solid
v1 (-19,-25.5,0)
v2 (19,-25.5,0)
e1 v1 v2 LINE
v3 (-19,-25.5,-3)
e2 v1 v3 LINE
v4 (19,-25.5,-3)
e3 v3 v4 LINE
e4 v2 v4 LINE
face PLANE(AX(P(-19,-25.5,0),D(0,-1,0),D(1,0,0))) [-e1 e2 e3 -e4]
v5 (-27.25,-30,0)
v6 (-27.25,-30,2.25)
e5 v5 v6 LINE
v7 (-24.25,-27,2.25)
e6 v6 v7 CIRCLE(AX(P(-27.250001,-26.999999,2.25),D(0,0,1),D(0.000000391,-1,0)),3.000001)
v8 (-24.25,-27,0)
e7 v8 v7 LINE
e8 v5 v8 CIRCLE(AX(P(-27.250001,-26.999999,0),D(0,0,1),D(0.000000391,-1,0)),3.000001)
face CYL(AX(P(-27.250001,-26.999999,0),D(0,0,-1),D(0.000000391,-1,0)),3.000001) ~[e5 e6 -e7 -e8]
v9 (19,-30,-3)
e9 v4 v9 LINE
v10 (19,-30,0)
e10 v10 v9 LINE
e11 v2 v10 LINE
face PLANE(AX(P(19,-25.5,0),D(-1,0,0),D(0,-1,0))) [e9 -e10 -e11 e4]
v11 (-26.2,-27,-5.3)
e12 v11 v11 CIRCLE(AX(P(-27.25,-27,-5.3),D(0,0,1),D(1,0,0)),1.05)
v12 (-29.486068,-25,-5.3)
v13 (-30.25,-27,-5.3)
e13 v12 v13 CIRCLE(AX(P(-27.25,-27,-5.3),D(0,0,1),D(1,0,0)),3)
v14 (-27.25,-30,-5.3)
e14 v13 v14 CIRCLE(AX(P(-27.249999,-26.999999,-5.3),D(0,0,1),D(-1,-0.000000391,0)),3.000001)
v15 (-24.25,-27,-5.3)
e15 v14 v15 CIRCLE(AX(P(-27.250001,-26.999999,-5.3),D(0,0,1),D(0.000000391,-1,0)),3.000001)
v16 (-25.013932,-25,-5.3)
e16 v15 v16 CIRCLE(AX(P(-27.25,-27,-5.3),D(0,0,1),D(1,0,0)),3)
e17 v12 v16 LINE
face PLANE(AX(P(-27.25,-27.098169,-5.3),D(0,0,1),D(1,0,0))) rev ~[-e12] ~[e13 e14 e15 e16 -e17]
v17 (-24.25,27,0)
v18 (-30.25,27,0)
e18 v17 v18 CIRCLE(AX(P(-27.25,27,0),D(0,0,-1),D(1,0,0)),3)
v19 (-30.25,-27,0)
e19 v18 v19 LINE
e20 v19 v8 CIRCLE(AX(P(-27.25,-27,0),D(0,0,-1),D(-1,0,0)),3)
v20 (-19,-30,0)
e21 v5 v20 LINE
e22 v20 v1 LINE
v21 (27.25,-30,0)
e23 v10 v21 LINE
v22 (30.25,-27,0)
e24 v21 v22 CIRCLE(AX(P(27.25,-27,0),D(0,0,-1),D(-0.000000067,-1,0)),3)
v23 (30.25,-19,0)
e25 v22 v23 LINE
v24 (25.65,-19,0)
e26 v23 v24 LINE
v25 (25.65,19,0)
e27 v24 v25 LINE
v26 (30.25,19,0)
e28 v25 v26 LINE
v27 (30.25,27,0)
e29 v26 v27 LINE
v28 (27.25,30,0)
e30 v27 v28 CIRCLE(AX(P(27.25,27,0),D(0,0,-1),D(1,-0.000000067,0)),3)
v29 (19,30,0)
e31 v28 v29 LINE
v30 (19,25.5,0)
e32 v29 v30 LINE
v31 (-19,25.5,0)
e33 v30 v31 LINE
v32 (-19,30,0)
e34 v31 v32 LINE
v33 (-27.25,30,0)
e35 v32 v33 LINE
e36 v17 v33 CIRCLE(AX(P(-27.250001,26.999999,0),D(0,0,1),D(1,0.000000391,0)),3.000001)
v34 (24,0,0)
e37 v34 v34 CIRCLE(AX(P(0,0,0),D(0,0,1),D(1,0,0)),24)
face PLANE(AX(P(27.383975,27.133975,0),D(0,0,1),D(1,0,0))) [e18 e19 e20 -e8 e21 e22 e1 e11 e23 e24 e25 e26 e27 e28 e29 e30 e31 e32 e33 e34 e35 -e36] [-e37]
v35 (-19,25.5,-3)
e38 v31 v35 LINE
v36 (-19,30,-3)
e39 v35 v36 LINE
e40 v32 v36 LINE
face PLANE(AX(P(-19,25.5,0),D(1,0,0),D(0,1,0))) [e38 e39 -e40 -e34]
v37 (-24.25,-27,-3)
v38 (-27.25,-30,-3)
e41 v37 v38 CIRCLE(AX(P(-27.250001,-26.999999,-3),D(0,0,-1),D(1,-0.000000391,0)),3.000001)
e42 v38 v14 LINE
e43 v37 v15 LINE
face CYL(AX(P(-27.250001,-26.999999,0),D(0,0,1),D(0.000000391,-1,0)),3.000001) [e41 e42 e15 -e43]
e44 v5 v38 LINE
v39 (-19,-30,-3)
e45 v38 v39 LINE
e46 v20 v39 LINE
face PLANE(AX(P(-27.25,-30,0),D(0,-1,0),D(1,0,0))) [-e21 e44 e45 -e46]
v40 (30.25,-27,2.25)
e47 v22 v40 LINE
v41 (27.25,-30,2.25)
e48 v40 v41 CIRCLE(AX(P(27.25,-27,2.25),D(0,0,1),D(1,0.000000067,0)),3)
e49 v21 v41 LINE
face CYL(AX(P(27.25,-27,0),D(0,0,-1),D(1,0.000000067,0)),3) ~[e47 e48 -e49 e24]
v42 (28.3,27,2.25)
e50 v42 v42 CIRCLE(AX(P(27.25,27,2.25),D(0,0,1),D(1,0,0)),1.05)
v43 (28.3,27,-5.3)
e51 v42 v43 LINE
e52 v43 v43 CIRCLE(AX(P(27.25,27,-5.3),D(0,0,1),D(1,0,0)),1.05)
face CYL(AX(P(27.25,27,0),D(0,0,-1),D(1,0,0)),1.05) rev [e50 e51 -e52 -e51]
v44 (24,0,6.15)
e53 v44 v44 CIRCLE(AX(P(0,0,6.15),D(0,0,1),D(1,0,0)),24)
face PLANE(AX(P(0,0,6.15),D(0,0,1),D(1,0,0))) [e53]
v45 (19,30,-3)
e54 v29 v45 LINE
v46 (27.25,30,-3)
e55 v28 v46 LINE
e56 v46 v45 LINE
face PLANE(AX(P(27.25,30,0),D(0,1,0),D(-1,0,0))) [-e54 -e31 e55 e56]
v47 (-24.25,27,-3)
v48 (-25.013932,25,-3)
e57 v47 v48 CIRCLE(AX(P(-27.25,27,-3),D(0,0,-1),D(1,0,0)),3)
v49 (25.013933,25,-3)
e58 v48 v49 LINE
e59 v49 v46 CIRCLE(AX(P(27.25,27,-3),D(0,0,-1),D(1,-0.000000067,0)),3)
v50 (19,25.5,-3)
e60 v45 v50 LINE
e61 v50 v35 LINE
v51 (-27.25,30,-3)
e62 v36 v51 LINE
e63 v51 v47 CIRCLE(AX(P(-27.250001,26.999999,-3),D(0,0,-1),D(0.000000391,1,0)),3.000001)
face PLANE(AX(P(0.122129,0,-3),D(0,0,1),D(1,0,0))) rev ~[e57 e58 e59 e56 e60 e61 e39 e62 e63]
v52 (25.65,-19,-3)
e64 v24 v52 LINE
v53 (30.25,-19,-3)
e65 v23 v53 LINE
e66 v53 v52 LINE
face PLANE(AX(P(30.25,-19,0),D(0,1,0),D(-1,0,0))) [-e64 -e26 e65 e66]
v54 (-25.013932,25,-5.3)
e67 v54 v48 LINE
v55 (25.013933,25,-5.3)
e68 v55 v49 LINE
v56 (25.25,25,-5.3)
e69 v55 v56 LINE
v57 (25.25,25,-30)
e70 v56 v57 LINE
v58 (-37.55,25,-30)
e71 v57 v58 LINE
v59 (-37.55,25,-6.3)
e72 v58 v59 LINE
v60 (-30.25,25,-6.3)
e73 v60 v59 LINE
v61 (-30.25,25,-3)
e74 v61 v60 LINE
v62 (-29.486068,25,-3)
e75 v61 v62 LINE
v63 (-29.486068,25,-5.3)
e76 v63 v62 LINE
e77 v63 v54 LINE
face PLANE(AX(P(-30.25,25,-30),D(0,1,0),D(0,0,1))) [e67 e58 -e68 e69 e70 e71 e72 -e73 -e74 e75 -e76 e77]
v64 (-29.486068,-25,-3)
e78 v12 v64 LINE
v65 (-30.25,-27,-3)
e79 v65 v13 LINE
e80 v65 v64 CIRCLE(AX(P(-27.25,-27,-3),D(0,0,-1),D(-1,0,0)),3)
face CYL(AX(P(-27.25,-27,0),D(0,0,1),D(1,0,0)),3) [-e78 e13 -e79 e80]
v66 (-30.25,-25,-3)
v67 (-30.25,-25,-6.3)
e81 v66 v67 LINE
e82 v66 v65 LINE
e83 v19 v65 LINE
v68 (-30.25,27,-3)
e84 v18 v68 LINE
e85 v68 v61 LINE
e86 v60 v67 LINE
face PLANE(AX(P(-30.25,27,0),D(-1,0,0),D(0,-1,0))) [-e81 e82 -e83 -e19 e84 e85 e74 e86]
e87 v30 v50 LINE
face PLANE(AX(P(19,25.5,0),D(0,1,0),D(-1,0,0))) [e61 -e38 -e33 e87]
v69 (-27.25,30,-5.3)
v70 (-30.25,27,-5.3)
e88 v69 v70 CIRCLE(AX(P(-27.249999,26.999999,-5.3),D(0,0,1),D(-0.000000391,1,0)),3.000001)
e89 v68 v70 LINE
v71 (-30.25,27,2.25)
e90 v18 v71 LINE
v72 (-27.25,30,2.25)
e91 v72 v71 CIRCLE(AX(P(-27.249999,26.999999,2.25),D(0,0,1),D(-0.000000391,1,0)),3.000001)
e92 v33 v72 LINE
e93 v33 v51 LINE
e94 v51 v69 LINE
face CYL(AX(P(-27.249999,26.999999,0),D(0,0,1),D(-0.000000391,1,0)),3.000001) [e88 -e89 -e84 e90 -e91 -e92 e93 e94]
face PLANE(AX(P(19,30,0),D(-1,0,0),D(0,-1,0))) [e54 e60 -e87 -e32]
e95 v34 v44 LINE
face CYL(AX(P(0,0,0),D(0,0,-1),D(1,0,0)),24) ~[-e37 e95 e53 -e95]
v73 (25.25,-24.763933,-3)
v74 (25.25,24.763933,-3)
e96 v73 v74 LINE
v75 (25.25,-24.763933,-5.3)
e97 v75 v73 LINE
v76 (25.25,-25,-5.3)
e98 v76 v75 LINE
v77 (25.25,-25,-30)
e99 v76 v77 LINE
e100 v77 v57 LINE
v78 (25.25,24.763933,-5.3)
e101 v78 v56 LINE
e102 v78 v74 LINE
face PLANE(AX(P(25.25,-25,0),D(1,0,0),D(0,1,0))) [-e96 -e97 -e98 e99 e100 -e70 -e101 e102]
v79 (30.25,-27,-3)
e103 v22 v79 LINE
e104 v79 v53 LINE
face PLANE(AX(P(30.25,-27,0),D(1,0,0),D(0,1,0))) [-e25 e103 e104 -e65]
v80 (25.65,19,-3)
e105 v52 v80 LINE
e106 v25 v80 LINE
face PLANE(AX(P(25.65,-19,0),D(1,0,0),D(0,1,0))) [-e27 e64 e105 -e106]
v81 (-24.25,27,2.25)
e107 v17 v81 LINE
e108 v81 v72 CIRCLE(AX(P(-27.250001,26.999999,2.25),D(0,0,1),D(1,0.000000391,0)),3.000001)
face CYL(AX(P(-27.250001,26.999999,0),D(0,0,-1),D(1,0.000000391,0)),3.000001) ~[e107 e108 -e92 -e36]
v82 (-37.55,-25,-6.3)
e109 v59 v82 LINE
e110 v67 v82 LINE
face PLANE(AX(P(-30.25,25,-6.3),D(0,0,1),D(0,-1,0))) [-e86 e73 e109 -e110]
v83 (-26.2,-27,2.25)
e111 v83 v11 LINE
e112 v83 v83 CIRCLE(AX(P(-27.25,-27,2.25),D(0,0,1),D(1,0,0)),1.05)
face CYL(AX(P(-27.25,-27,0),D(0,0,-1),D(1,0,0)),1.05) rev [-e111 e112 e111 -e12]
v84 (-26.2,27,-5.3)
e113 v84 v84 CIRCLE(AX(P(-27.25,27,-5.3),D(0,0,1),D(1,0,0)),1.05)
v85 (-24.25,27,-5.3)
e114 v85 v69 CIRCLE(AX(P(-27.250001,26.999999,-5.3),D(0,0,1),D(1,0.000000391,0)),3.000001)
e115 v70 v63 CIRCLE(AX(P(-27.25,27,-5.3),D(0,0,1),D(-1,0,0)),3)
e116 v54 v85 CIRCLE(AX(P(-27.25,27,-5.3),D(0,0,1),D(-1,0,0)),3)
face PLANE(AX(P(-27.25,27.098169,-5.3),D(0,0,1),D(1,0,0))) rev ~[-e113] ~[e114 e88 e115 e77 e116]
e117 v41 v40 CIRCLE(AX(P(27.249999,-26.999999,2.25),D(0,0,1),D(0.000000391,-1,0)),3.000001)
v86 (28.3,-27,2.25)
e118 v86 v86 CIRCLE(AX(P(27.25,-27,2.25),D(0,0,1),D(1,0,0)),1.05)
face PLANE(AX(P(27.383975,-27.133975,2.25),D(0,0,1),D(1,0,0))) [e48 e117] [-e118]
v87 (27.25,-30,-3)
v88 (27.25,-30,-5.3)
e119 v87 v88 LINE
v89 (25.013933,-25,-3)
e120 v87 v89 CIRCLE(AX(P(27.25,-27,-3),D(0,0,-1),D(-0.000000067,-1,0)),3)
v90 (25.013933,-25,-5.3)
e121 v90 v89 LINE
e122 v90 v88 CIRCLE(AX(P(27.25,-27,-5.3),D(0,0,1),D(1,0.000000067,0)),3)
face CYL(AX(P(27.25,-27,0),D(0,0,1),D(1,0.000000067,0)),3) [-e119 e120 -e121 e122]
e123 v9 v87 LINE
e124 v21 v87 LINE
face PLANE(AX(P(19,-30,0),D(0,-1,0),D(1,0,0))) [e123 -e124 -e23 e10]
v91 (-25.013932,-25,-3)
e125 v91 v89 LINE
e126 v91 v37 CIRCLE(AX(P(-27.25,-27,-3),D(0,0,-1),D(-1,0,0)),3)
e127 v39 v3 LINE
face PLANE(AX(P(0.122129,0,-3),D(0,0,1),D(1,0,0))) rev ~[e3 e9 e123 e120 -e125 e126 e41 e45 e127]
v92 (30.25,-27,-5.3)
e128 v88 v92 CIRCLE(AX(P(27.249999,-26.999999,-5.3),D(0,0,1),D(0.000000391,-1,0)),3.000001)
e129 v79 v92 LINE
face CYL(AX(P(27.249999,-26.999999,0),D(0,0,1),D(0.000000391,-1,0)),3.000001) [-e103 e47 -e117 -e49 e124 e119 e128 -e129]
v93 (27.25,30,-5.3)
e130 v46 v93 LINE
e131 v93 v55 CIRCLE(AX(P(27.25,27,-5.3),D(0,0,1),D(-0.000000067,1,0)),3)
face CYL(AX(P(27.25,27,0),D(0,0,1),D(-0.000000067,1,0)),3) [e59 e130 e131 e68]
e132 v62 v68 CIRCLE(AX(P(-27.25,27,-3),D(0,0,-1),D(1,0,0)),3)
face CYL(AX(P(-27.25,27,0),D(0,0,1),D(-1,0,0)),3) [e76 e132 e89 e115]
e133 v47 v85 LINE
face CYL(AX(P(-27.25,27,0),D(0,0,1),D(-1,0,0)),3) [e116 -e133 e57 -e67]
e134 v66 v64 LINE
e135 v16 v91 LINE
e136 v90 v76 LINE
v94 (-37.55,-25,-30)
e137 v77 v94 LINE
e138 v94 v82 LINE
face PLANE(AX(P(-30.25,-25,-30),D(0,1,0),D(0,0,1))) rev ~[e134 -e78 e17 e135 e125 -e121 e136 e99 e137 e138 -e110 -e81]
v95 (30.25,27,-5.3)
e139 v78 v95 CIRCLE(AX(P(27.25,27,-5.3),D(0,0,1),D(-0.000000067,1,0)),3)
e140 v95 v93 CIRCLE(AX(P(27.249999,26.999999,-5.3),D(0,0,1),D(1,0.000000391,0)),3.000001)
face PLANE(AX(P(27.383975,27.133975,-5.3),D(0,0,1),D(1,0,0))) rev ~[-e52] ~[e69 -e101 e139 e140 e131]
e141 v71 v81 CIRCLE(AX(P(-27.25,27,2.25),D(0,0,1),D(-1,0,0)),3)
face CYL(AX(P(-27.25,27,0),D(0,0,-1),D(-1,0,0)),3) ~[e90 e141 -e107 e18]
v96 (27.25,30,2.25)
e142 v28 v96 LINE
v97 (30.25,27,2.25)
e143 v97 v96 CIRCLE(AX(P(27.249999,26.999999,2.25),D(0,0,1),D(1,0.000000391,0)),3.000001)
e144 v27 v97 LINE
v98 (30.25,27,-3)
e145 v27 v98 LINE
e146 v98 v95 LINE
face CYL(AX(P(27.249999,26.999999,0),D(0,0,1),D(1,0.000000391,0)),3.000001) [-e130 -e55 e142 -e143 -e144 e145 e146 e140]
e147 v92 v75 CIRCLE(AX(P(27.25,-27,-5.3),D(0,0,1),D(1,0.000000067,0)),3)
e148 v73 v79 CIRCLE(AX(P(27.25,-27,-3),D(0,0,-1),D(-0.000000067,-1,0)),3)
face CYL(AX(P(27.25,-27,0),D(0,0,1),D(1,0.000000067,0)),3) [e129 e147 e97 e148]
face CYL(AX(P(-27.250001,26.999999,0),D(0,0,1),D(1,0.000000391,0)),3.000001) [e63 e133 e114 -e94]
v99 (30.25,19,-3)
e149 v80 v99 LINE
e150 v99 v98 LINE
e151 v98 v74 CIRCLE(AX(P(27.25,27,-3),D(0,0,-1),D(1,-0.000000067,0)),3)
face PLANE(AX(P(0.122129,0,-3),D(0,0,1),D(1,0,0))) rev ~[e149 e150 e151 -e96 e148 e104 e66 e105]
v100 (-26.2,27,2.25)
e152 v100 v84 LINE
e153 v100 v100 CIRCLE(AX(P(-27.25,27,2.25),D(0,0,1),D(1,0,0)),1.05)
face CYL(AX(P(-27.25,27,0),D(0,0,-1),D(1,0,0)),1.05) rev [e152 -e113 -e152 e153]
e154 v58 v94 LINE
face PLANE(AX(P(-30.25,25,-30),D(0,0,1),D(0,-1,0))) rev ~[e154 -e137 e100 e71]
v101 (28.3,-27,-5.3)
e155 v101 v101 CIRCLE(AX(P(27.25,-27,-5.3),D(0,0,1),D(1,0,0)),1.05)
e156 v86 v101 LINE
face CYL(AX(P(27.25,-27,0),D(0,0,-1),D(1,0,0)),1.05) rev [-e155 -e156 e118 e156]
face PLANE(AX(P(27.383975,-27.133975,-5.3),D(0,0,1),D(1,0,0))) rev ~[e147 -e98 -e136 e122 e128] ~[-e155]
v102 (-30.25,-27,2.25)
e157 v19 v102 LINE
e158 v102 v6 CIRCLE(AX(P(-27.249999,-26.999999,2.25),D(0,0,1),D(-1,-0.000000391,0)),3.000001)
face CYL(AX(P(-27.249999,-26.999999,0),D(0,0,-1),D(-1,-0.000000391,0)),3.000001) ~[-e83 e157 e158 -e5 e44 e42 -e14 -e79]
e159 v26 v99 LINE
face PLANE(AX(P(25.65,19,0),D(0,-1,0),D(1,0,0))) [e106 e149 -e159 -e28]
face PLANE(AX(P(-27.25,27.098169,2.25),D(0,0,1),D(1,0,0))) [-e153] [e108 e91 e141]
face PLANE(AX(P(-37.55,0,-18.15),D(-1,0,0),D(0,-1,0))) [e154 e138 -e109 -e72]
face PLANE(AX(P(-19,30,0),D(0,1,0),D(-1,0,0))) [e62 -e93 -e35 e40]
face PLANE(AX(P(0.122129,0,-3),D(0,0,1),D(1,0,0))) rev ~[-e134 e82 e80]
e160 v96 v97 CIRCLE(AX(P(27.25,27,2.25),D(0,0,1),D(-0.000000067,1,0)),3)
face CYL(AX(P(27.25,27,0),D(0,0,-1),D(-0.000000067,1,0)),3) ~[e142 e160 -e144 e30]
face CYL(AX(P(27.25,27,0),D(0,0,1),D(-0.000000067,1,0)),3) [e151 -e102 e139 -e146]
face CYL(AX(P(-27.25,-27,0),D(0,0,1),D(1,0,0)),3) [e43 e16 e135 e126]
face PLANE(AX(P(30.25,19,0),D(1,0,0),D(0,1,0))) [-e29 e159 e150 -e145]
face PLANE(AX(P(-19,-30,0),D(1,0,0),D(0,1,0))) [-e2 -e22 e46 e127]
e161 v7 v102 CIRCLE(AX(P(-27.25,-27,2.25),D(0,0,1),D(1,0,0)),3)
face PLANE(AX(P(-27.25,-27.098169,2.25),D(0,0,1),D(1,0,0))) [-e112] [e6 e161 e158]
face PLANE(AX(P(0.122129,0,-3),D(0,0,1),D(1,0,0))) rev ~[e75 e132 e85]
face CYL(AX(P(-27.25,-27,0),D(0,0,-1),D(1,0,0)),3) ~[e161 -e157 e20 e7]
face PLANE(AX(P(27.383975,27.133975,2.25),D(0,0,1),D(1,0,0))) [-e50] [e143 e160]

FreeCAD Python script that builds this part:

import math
import FreeCAD as App
import Part
import Sketcher


def add_polygon(sketch, points):
    """Adds a closed chain of lines whose ends are joined by coincident constraints."""
    first, n = sketch.GeometryCount, len(points)
    for a, b in zip(points, points[1:] + points[:1]):
        sketch.addGeometry(Part.LineSegment(App.Vector(*a, 0), App.Vector(*b, 0)), False)
    for i in range(n):
        sketch.addConstraint(Sketcher.Constraint("Coincident", first + i, 2, first + (i + 1) % n, 1))

doc = App.newDocument("Part")
params = doc.addObject("Spreadsheet::Sheet", "Params")
for row, (alias, value) in enumerate([
    ("sketch1_diameter", "48 mm"),
    ("pad1_length", "6.15 mm"),
    ("sketch2_radius", "3.000001 mm"),
    ("sketch2_diameter", "2.1 mm"),
    ("pad2_length", "2.25 mm"),
    ("sketch3_radius", "3 mm"),
    ("sketch3_diameter", "2.1 mm"),
    ("pad3_length", "5.3 mm"),
    ("sketch4_diameter", "48 mm"),
    ("sketch4_radius", "3 mm"),
    ("sketch4_width", "38 mm"),
    ("sketch4_height", "54 mm"),
    ("sketch4_width2", "4.6 mm"),
    ("pad4_length", "3 mm"),
    ("sketch5_height", "50 mm"),
    ("sketch5_width", "55.5 mm"),
    ("pad5_length", "30 mm"),
    ("sketch6_width", "50 mm"),
    ("sketch6_height", "23.7 mm"),
    ("pad6_length", "7.3 mm"),
], start=1):
    params.set(f"A{row}", alias)
    params.set(f"B{row}", "=" + value)
    params.setAlias(f"B{row}", alias)

body = doc.addObject("PartDesign::Body", "Body")

# Sketch on XY plane
sketch1 = doc.addObject("Sketcher::SketchObject", "Sketch")
body.addObject(sketch1)
sketch1.AttachmentSupport = (doc.XY_Plane, [""])
sketch1.MapMode = "FlatFace"
sketch1.addGeometry(Part.Circle(App.Vector(0, 0, 0), App.Vector(0, 0, 1), 24), False)
sketch1.addConstraint(Sketcher.Constraint("Coincident", 0, 3, -1, 1))
sketch1.addConstraint(Sketcher.Constraint("Diameter", 0, 48.0))
sketch1.setExpression("Constraints[1]", "Params.sketch1_diameter")
pad1 = doc.addObject("PartDesign::Pad", "Pad")
body.addObject(pad1)
pad1.Profile = sketch1
pad1.setExpression("Length", "Params.pad1_length")
body2 = doc.addObject("PartDesign::Body", "Body001")
body2.AllowCompound = True

# Sketch on XY plane
sketch2 = doc.addObject("Sketcher::SketchObject", "Sketch001")
body2.addObject(sketch2)
sketch2.AttachmentSupport = (doc.getObject("XY_Plane001"), [""])
sketch2.MapMode = "FlatFace"
sketch2.addGeometry(Part.ArcOfCircle(Part.Circle(App.Vector(27.249999, -26.999999, 0), App.Vector(0, 0, 1), 3.000001), math.radians(-89.999978), math.radians(-0.000022)), False)
sketch2.addGeometry(Part.ArcOfCircle(Part.Circle(App.Vector(27.25, -27, 0), App.Vector(0, 0, 1), 3), math.radians(0.000004), math.radians(269.999996)), False)
sketch2.addGeometry(Part.Circle(App.Vector(27.25, -27, 0), App.Vector(0, 0, 1), 1.05), False)
sketch2.addGeometry(Part.ArcOfCircle(Part.Circle(App.Vector(27.249999, 26.999999, 0), App.Vector(0, 0, 1), 3.000001), math.radians(0.000022), math.radians(89.999978)), False)
sketch2.addGeometry(Part.ArcOfCircle(Part.Circle(App.Vector(27.25, 27, 0), App.Vector(0, 0, 1), 3), math.radians(90.000004), math.radians(359.999996)), False)
sketch2.addGeometry(Part.Circle(App.Vector(27.25, 27, 0), App.Vector(0, 0, 1), 1.05), False)
sketch2.addGeometry(Part.ArcOfCircle(Part.Circle(App.Vector(-27.250001, 26.999999, 0), App.Vector(0, 0, 1), 3.000001), math.radians(0.000022), math.radians(89.999978)), False)
sketch2.addGeometry(Part.ArcOfCircle(Part.Circle(App.Vector(-27.249999, 26.999999, 0), App.Vector(0, 0, 1), 3.000001), math.radians(90.000022), math.radians(179.999978)), False)
sketch2.addGeometry(Part.ArcOfCircle(Part.Circle(App.Vector(-27.25, 27, 0), App.Vector(0, 0, 1), 3), math.radians(180), math.radians(360)), False)
sketch2.addGeometry(Part.Circle(App.Vector(-27.25, 27, 0), App.Vector(0, 0, 1), 1.05), False)
sketch2.addGeometry(Part.ArcOfCircle(Part.Circle(App.Vector(-27.25, -27, 0), App.Vector(0, 0, 1), 3), math.radians(0), math.radians(180)), False)
sketch2.addGeometry(Part.ArcOfCircle(Part.Circle(App.Vector(-27.249999, -26.999999, 0), App.Vector(0, 0, 1), 3.000001), math.radians(-179.999978), math.radians(-90.000022)), False)
sketch2.addGeometry(Part.ArcOfCircle(Part.Circle(App.Vector(-27.250001, -26.999999, 0), App.Vector(0, 0, 1), 3.000001), math.radians(-89.999978), math.radians(-0.000022)), False)
sketch2.addGeometry(Part.Circle(App.Vector(-27.25, -27, 0), App.Vector(0, 0, 1), 1.05), False)
sketch2.addConstraint(Sketcher.Constraint("Tangent", 0, 1, 1, 2))
sketch2.addConstraint(Sketcher.Constraint("Coincident", 1, 1, 0, 2))
sketch2.addConstraint(Sketcher.Constraint("Tangent", 3, 1, 4, 2))
sketch2.addConstraint(Sketcher.Constraint("Coincident", 4, 1, 3, 2))
sketch2.addConstraint(Sketcher.Constraint("Tangent", 6, 2, 7, 1))
sketch2.addConstraint(Sketcher.Constraint("Tangent", 7, 2, 8, 1))
sketch2.addConstraint(Sketcher.Constraint("Tangent", 8, 2, 6, 1))
sketch2.addConstraint(Sketcher.Constraint("Tangent", 10, 2, 11, 1))
sketch2.addConstraint(Sketcher.Constraint("Tangent", 11, 2, 12, 1))
sketch2.addConstraint(Sketcher.Constraint("Tangent", 12, 2, 10, 1))
sketch2.addConstraint(Sketcher.Constraint("Coincident", 2, 3, 0, 3))
sketch2.addConstraint(Sketcher.Constraint("Coincident", 5, 3, 3, 3))
sketch2.addConstraint(Sketcher.Constraint("Coincident", 9, 3, 6, 3))
sketch2.addConstraint(Sketcher.Constraint("Coincident", 13, 3, 10, 3))
sketch2.addConstraint(Sketcher.Constraint("Equal", 1, 3))
sketch2.addConstraint(Sketcher.Constraint("Equal", 2, 5))
sketch2.addConstraint(Sketcher.Constraint("Equal", 4, 6))
sketch2.addConstraint(Sketcher.Constraint("Equal", 5, 9))
sketch2.addConstraint(Sketcher.Constraint("Equal", 8, 10))
sketch2.addConstraint(Sketcher.Constraint("Equal", 9, 13))
sketch2.addConstraint(Sketcher.Constraint("Symmetric", 0, 3, 6, 3, -1, 1))
sketch2.addConstraint(Sketcher.Constraint("Symmetric", 3, 3, 10, 3, -1, 1))
sketch2.addConstraint(Sketcher.Constraint("Symmetric", 3, 3, 6, 3, -2))
sketch2.addConstraint(Sketcher.Constraint("Horizontal", 13, 3, 1, 1))
sketch2.addConstraint(Sketcher.Constraint("Horizontal", 9, 3, 3, 1))
sketch2.addConstraint(Sketcher.Constraint("Horizontal", 3, 1, 7, 2))
sketch2.addConstraint(Sketcher.Constraint("Horizontal", 7, 2, 8, 2))
sketch2.addConstraint(Sketcher.Constraint("Horizontal", 1, 1, 10, 2))
sketch2.addConstraint(Sketcher.Constraint("Horizontal", 10, 2, 12, 2))
sketch2.addConstraint(Sketcher.Constraint("Vertical", 5, 3, 0, 1))
sketch2.addConstraint(Sketcher.Constraint("Vertical", 0, 1, 4, 1))
sketch2.addConstraint(Sketcher.Constraint("Vertical", 13, 3, 6, 2))
sketch2.addConstraint(Sketcher.Constraint("Vertical", 6, 2, 11, 2))
sketch2.addConstraint(Sketcher.Constraint("Radius", 0, 3.000001))
sketch2.addConstraint(Sketcher.Constraint("Diameter", 2, 2.1))
sketch2.addConstraint(Sketcher.Constraint("DistanceY", 0, 3, -1, 1, 26.999999))
sketch2.addConstraint(Sketcher.Constraint("DistanceX", 6, 3, 3, 3, 54.5))
sketch2.setExpression("Constraints[33]", "Params.sketch2_radius")
sketch2.setExpression("Constraints[34]", "Params.sketch2_diameter")
pad2 = doc.addObject("PartDesign::Pad", "Pad001")
body2.addObject(pad2)
pad2.Profile = sketch2
pad2.setExpression("Length", "Params.pad2_length")
body3 = doc.addObject("PartDesign::Body", "Body002")
body3.AllowCompound = True

# Sketch on XY plane
sketch3 = doc.addObject("Sketcher::SketchObject", "Sketch002")
body3.addObject(sketch3)
sketch3.AttachmentSupport = (doc.getObject("XY_Plane002"), [""])
sketch3.MapMode = "FlatFace"
sketch3.addGeometry(Part.ArcOfCircle(Part.Circle(App.Vector(-27.25, -27, 0), App.Vector(0, 0, 1), 3), math.radians(0), math.radians(180)), False)
sketch3.addGeometry(Part.ArcOfCircle(Part.Circle(App.Vector(-27.249999, -26.999999, 0), App.Vector(0, 0, 1), 3.000001), math.radians(-179.999978), math.radians(-90.000022)), False)
sketch3.addGeometry(Part.ArcOfCircle(Part.Circle(App.Vector(-27.250001, -26.999999, 0), App.Vector(0, 0, 1), 3.000001), math.radians(-89.999978), math.radians(-0.000022)), False)
sketch3.addGeometry(Part.Circle(App.Vector(-27.25, -27, 0), App.Vector(0, 0, 1), 1.05), False)
sketch3.addGeometry(Part.ArcOfCircle(Part.Circle(App.Vector(-27.250001, 26.999999, 0), App.Vector(0, 0, 1), 3.000001), math.radians(0.000022), math.radians(89.999978)), False)
sketch3.addGeometry(Part.ArcOfCircle(Part.Circle(App.Vector(-27.249999, 26.999999, 0), App.Vector(0, 0, 1), 3.000001), math.radians(90.000022), math.radians(179.999978)), False)
sketch3.addGeometry(Part.ArcOfCircle(Part.Circle(App.Vector(-27.25, 27, 0), App.Vector(0, 0, 1), 3), math.radians(180), math.radians(360)), False)
sketch3.addGeometry(Part.Circle(App.Vector(-27.25, 27, 0), App.Vector(0, 0, 1), 1.05), False)
sketch3.addGeometry(Part.ArcOfCircle(Part.Circle(App.Vector(27.249999, -26.999999, 0), App.Vector(0, 0, 1), 3.000001), math.radians(-89.999978), math.radians(-0.000022)), False)
sketch3.addGeometry(Part.ArcOfCircle(Part.Circle(App.Vector(27.25, -27, 0), App.Vector(0, 0, 1), 3), math.radians(0.000004), math.radians(269.999996)), False)
sketch3.addGeometry(Part.Circle(App.Vector(27.25, -27, 0), App.Vector(0, 0, 1), 1.05), False)
sketch3.addGeometry(Part.ArcOfCircle(Part.Circle(App.Vector(27.249999, 26.999999, 0), App.Vector(0, 0, 1), 3.000001), math.radians(0.000022), math.radians(89.999978)), False)
sketch3.addGeometry(Part.ArcOfCircle(Part.Circle(App.Vector(27.25, 27, 0), App.Vector(0, 0, 1), 3), math.radians(90.000004), math.radians(359.999996)), False)
sketch3.addGeometry(Part.Circle(App.Vector(27.25, 27, 0), App.Vector(0, 0, 1), 1.05), False)
sketch3.addConstraint(Sketcher.Constraint("Tangent", 0, 2, 1, 1))
sketch3.addConstraint(Sketcher.Constraint("Tangent", 1, 2, 2, 1))
sketch3.addConstraint(Sketcher.Constraint("Tangent", 2, 2, 0, 1))
sketch3.addConstraint(Sketcher.Constraint("Tangent", 4, 2, 5, 1))
sketch3.addConstraint(Sketcher.Constraint("Tangent", 5, 2, 6, 1))
sketch3.addConstraint(Sketcher.Constraint("Tangent", 6, 2, 4, 1))
sketch3.addConstraint(Sketcher.Constraint("Tangent", 8, 1, 9, 2))
sketch3.addConstraint(Sketcher.Constraint("Coincident", 9, 1, 8, 2))
sketch3.addConstraint(Sketcher.Constraint("Tangent", 11, 1, 12, 2))
sketch3.addConstraint(Sketcher.Constraint("Coincident", 12, 1, 11, 2))
sketch3.addConstraint(Sketcher.Constraint("Coincident", 3, 3, 0, 3))
sketch3.addConstraint(Sketcher.Constraint("Coincident", 7, 3, 4, 3))
sketch3.addConstraint(Sketcher.Constraint("Coincident", 10, 3, 8, 3))
sketch3.addConstraint(Sketcher.Constraint("Coincident", 13, 3, 11, 3))
sketch3.addConstraint(Sketcher.Constraint("Equal", 2, 4))
sketch3.addConstraint(Sketcher.Constraint("Equal", 3, 7))
sketch3.addConstraint(Sketcher.Constraint("Equal", 6, 8))
sketch3.addConstraint(Sketcher.Constraint("Equal", 7, 10))
sketch3.addConstraint(Sketcher.Constraint("Equal", 9, 11))
sketch3.addConstraint(Sketcher.Constraint("Equal", 10, 13))
sketch3.addConstraint(Sketcher.Constraint("Symmetric", 4, 3, 8, 3, -1, 1))
sketch3.addConstraint(Sketcher.Constraint("Symmetric", 0, 3, 11, 3, -1, 1))
sketch3.addConstraint(Sketcher.Constraint("Symmetric", 0, 3, 8, 3, -2))
sketch3.addConstraint(Sketcher.Constraint("Horizontal", 10, 3, 0, 2))
sketch3.addConstraint(Sketcher.Constraint("Horizontal", 0, 2, 2, 2))
sketch3.addConstraint(Sketcher.Constraint("Horizontal", 13, 3, 5, 2))
sketch3.addConstraint(Sketcher.Constraint("Horizontal", 5, 2, 6, 2))
sketch3.addConstraint(Sketcher.Constraint("Horizontal", 2, 2, 9, 1))
sketch3.addConstraint(Sketcher.Constraint("Horizontal", 6, 2, 11, 1))
sketch3.addConstraint(Sketcher.Constraint("Vertical", 7, 3, 1, 2))
sketch3.addConstraint(Sketcher.Constraint("Vertical", 1, 2, 4, 2))
sketch3.addConstraint(Sketcher.Constraint("Vertical", 13, 3, 8, 1))
sketch3.addConstraint(Sketcher.Constraint("Vertical", 8, 1, 12, 1))
sketch3.addConstraint(Sketcher.Constraint("Radius", 0, 3.0))
sketch3.addConstraint(Sketcher.Constraint("Diameter", 3, 2.1))
sketch3.addConstraint(Sketcher.Constraint("DistanceY", 0, 3, -1, 1, 27.0))
sketch3.addConstraint(Sketcher.Constraint("DistanceX", 0, 3, 8, 3, 54.499999))
sketch3.setExpression("Constraints[33]", "Params.sketch3_radius")
sketch3.setExpression("Constraints[34]", "Params.sketch3_diameter")
pad3 = doc.addObject("PartDesign::Pad", "Pad002")
body3.addObject(pad3)
pad3.Profile = sketch3
pad3.setExpression("Length", "Params.pad3_length")
pad3.Reversed = True
body4 = doc.addObject("PartDesign::Body", "Body003")
body4.AllowCompound = True

# Sketch on XY plane
sketch4 = doc.addObject("Sketcher::SketchObject", "Sketch003")
body4.addObject(sketch4)
sketch4.AttachmentSupport = (doc.getObject("XY_Plane003"), [""])
sketch4.MapMode = "FlatFace"
sketch4.addGeometry(Part.ArcOfCircle(Part.Circle(App.Vector(27.25, 27, 0), App.Vector(0, 0, 1), 3), math.radians(90.000004), math.radians(359.999996)), False)
sketch4.addGeometry(Part.LineSegment(App.Vector(27.25, 30, 0), App.Vector(19, 30, 0)), False)
sketch4.addGeometry(Part.LineSegment(App.Vector(19, 30, 0), App.Vector(19, 25.5, 0)), False)
sketch4.addGeometry(Part.LineSegment(App.Vector(19, 25.5, 0), App.Vector(-19, 25.5, 0)), False)
sketch4.addGeometry(Part.LineSegment(App.Vector(-19, 25.5, 0), App.Vector(-19, 30, 0)), False)
sketch4.addGeometry(Part.LineSegment(App.Vector(-19, 30, 0), App.Vector(-27.25, 30, 0)), False)
sketch4.addGeometry(Part.ArcOfCircle(Part.Circle(App.Vector(-27.250001, 26.999999, 0), App.Vector(0, 0, 1), 3.000001), math.radians(0.000022), math.radians(89.999978)), False)
sketch4.addGeometry(Part.ArcOfCircle(Part.Circle(App.Vector(-27.25, 27, 0), App.Vector(0, 0, 1), 3), math.radians(180), math.radians(360)), False)
sketch4.addGeometry(Part.LineSegment(App.Vector(-30.25, 27, 0), App.Vector(-30.25, -27, 0)), False)
sketch4.addGeometry(Part.ArcOfCircle(Part.Circle(App.Vector(-27.25, -27, 0), App.Vector(0, 0, 1), 3), math.radians(0), math.radians(180)), False)
sketch4.addGeometry(Part.ArcOfCircle(Part.Circle(App.Vector(-27.250001, -26.999999, 0), App.Vector(0, 0, 1), 3.000001), math.radians(-89.999978), math.radians(-0.000022)), False)
sketch4.addGeometry(Part.LineSegment(App.Vector(-27.25, -30, 0), App.Vector(-19, -30, 0)), False)
sketch4.addGeometry(Part.LineSegment(App.Vector(-19, -30, 0), App.Vector(-19, -25.5, 0)), False)
sketch4.addGeometry(Part.LineSegment(App.Vector(-19, -25.5, 0), App.Vector(19, -25.5, 0)), False)
sketch4.addGeometry(Part.LineSegment(App.Vector(19, -25.5, 0), App.Vector(19, -30, 0)), False)
sketch4.addGeometry(Part.LineSegment(App.Vector(19, -30, 0), App.Vector(27.25, -30, 0)), False)
sketch4.addGeometry(Part.ArcOfCircle(Part.Circle(App.Vector(27.25, -27, 0), App.Vector(0, 0, 1), 3), math.radians(0.000004), math.radians(269.999996)), False)
sketch4.addGeometry(Part.LineSegment(App.Vector(30.25, -27, 0), App.Vector(30.25, -19, 0)), False)
sketch4.addGeometry(Part.LineSegment(App.Vector(30.25, -19, 0), App.Vector(25.65, -19, 0)), False)
sketch4.addGeometry(Part.LineSegment(App.Vector(25.65, -19, 0), App.Vector(25.65, 19, 0)), False)
sketch4.addGeometry(Part.LineSegment(App.Vector(25.65, 19, 0), App.Vector(30.25, 19, 0)), False)
sketch4.addGeometry(Part.LineSegment(App.Vector(30.25, 19, 0), App.Vector(30.25, 27, 0)), False)
sketch4.addGeometry(Part.Circle(App.Vector(0, 0, 0), App.Vector(0, 0, 1), 24), False)
sketch4.addConstraint(Sketcher.Constraint("Tangent", 0, 1, 1, 1))
sketch4.addConstraint(Sketcher.Constraint("Coincident", 1, 2, 2, 1))
sketch4.addConstraint(Sketcher.Constraint("Coincident", 2, 2, 3, 1))
sketch4.addConstraint(Sketcher.Constraint("Coincident", 3, 2, 4, 1))
sketch4.addConstraint(Sketcher.Constraint("Coincident", 4, 2, 5, 1))
sketch4.addConstraint(Sketcher.Constraint("Tangent", 5, 2, 6, 2))
sketch4.addConstraint(Sketcher.Constraint("Tangent", 6, 1, 7, 2))
sketch4.addConstraint(Sketcher.Constraint("Tangent", 7, 1, 8, 1))
sketch4.addConstraint(Sketcher.Constraint("Tangent", 8, 2, 9, 2))
sketch4.addConstraint(Sketcher.Constraint("Tangent", 9, 1, 10, 2))
sketch4.addConstraint(Sketcher.Constraint("Tangent", 10, 1, 11, 1))
sketch4.addConstraint(Sketcher.Constraint("Coincident", 11, 2, 12, 1))
sketch4.addConstraint(Sketcher.Constraint("Coincident", 12, 2, 13, 1))
sketch4.addConstraint(Sketcher.Constraint("Coincident", 13, 2, 14, 1))
sketch4.addConstraint(Sketcher.Constraint("Coincident", 14, 2, 15, 1))
sketch4.addConstraint(Sketcher.Constraint("Tangent", 15, 2, 16, 2))
sketch4.addConstraint(Sketcher.Constraint("Tangent", 16, 1, 17, 1))
sketch4.addConstraint(Sketcher.Constraint("Coincident", 17, 2, 18, 1))
sketch4.addConstraint(Sketcher.Constraint("Coincident", 18, 2, 19, 1))
sketch4.addConstraint(Sketcher.Constraint("Coincident", 19, 2, 20, 1))
sketch4.addConstraint(Sketcher.Constraint("Coincident", 20, 2, 21, 1))
sketch4.addConstraint(Sketcher.Constraint("Tangent", 21, 2, 0, 2))
sketch4.addConstraint(Sketcher.Constraint("Horizontal", 1))
sketch4.addConstraint(Sketcher.Constraint("Vertical", 2))
sketch4.addConstraint(Sketcher.Constraint("Horizontal", 3))
sketch4.addConstraint(Sketcher.Constraint("Vertical", 4))
sketch4.addConstraint(Sketcher.Constraint("Horizontal", 5))
sketch4.addConstraint(Sketcher.Constraint("Vertical", 8))
sketch4.addConstraint(Sketcher.Constraint("Horizontal", 11))
sketch4.addConstraint(Sketcher.Constraint("Vertical", 12))
sketch4.addConstraint(Sketcher.Constraint("Horizontal", 13))
sketch4.addConstraint(Sketcher.Constraint("Vertical", 14))
sketch4.addConstraint(Sketcher.Constraint("Horizontal", 15))
sketch4.addConstraint(Sketcher.Constraint("Vertical", 17))
sketch4.addConstraint(Sketcher.Constraint("Horizontal", 18))
sketch4.addConstraint(Sketcher.Constraint("Vertical", 19))
sketch4.addConstraint(Sketcher.Constraint("Horizontal", 20))
sketch4.addConstraint(Sketcher.Constraint("Vertical", 21))
sketch4.addConstraint(Sketcher.Constraint("Coincident", 22, 3, -1, 1))
sketch4.addConstraint(Sketcher.Constraint("Equal", 0, 6))
sketch4.addConstraint(Sketcher.Constraint("Equal", 6, 7))
sketch4.addConstraint(Sketcher.Constraint("Equal", 7, 9))
sketch4.addConstraint(Sketcher.Constraint("Equal", 9, 10))
sketch4.addConstraint(Sketcher.Constraint("Equal", 10, 16))
sketch4.addConstraint(Sketcher.Constraint("Symmetric", 0, 3, 9, 3, -1, 1))
sketch4.addConstraint(Sketcher.Constraint("Symmetric", 6, 3, 16, 3, -1, 1))
sketch4.addConstraint(Sketcher.Constraint("Symmetric", 2, 2, 12, 2, -1, 1))
sketch4.addConstraint(Sketcher.Constraint("Symmetric", 1, 2, 4, 2, -2))
sketch4.addConstraint(Sketcher.Constraint("Horizontal", 7, 3, 6, 1))
sketch4.addConstraint(Sketcher.Constraint("Horizontal", 8, 2, 9, 1))
sketch4.addConstraint(Sketcher.Constraint("Vertical", 2, 2, 13, 2))
sketch4.addConstraint(Sketcher.Constraint("Equal", 13, 19))
sketch4.addConstraint(Sketcher.Constraint("Equal", 17, 21))
sketch4.addConstraint(Sketcher.Constraint("Diameter", 22, 48.0))
sketch4.addConstraint(Sketcher.Constraint("Radius", 0, 3.0))
sketch4.addConstraint(Sketcher.Constraint("DistanceX", 3, 2, 3, 1, 38.0))
sketch4.addConstraint(Sketcher.Constraint("DistanceY", 8, 2, 8, 1, 54.0))
sketch4.addConstraint(Sketcher.Constraint("DistanceX", 18, 2, 18, 1, 4.6))
sketch4.addConstraint(Sketcher.Constraint("DistanceY", 2, 2, 2, 1, 4.5))
sketch4.addConstraint(Sketcher.Constraint("DistanceX", 1, 2, 1, 1, 8.25))
sketch4.setExpression("Constraints[53]", "Params.sketch4_diameter")
sketch4.setExpression("Constraints[54]", "Params.sketch4_radius")
sketch4.setExpression("Constraints[55]", "Params.sketch4_width")
sketch4.setExpression("Constraints[56]", "Params.sketch4_height")
sketch4.setExpression("Constraints[57]", "Params.sketch4_width2")
pad4 = doc.addObject("PartDesign::Pad", "Pad003")
body4.addObject(pad4)
pad4.Profile = sketch4
pad4.setExpression("Length", "Params.pad4_length")
pad4.Reversed = True
doc.recompute()

boolean = doc.addObject("PartDesign::Boolean", "Boolean")
body4.addObject(boolean)
boolean.Type = "Fuse"
boolean.addObjects([body3])
doc.recompute()

boolean2 = doc.addObject("PartDesign::Boolean", "Boolean001")
body4.addObject(boolean2)
boolean2.Type = "Fuse"
boolean2.addObjects([body2])
doc.recompute()

boolean3 = doc.addObject("PartDesign::Boolean", "Boolean002")
body4.addObject(boolean3)
boolean3.Type = "Fuse"
boolean3.addObjects([body])
body5 = doc.addObject("PartDesign::Body", "Body004")

# Sketch on XY plane
sketch5 = doc.addObject("Sketcher::SketchObject", "Sketch004")
body5.addObject(sketch5)
sketch5.AttachmentSupport = (doc.getObject("XY_Plane004"), [""])
sketch5.MapMode = "FlatFace"
add_polygon(sketch5, [(-30.25, 25), (-30.25, -25), (25.25, -25), (25.25, 25)])  # lines 0-3
sketch5.addConstraint(Sketcher.Constraint("Vertical", 0))
sketch5.addConstraint(Sketcher.Constraint("Horizontal", 1))
sketch5.addConstraint(Sketcher.Constraint("Vertical", 2))
sketch5.addConstraint(Sketcher.Constraint("Horizontal", 3))
sketch5.addConstraint(Sketcher.Constraint("DistanceY", 0, 2, 0, 1, 50.0))
sketch5.addConstraint(Sketcher.Constraint("DistanceX", 1, 1, 1, 2, 55.5))
sketch5.addConstraint(Sketcher.Constraint("DistanceY", 0, 2, -1, 1, 25.0))
sketch5.addConstraint(Sketcher.Constraint("DistanceX", 0, 2, -1, 1, 30.25))
sketch5.setExpression("Constraints[8]", "Params.sketch5_height")
sketch5.setExpression("Constraints[9]", "Params.sketch5_width")
pad5 = doc.addObject("PartDesign::Pad", "Pad004")
body5.addObject(pad5)
pad5.Profile = sketch5
pad5.setExpression("Length", "Params.pad5_length")
pad5.Reversed = True
doc.recompute()

boolean4 = doc.addObject("PartDesign::Boolean", "Boolean003")
body4.addObject(boolean4)
boolean4.Type = "Fuse"
boolean4.addObjects([body5])

# Sketch on YZ plane
sketch6 = doc.addObject("Sketcher::SketchObject", "Sketch005")
body4.addObject(sketch6)
sketch6.AttachmentSupport = (doc.getObject("YZ_Plane003"), [""])
sketch6.MapMode = "FlatFace"
sketch6.AttachmentOffset = App.Placement(App.Vector(0, 0, -30.25), App.Rotation())
add_polygon(sketch6, [(25, -6.3), (25, -30), (-25, -30), (-25, -6.3)])  # lines 0-3
sketch6.addConstraint(Sketcher.Constraint("Vertical", 0))
sketch6.addConstraint(Sketcher.Constraint("Horizontal", 1))
sketch6.addConstraint(Sketcher.Constraint("Vertical", 2))
sketch6.addConstraint(Sketcher.Constraint("Horizontal", 3))
sketch6.addConstraint(Sketcher.Constraint("DistanceX", 1, 2, 1, 1, 50.0))
sketch6.addConstraint(Sketcher.Constraint("DistanceY", 0, 2, 0, 1, 23.7))
sketch6.addConstraint(Sketcher.Constraint("DistanceX", -1, 1, 0, 2, 25.0))
sketch6.addConstraint(Sketcher.Constraint("DistanceY", 0, 2, -1, 1, 30.0))
sketch6.setExpression("Constraints[8]", "Params.sketch6_width")
sketch6.setExpression("Constraints[9]", "Params.sketch6_height")
pad6 = doc.addObject("PartDesign::Pad", "Pad005")
body4.addObject(pad6)
pad6.Profile = sketch6
pad6.setExpression("Length", "Params.pad6_length")
pad6.Reversed = True

doc.recompute()
